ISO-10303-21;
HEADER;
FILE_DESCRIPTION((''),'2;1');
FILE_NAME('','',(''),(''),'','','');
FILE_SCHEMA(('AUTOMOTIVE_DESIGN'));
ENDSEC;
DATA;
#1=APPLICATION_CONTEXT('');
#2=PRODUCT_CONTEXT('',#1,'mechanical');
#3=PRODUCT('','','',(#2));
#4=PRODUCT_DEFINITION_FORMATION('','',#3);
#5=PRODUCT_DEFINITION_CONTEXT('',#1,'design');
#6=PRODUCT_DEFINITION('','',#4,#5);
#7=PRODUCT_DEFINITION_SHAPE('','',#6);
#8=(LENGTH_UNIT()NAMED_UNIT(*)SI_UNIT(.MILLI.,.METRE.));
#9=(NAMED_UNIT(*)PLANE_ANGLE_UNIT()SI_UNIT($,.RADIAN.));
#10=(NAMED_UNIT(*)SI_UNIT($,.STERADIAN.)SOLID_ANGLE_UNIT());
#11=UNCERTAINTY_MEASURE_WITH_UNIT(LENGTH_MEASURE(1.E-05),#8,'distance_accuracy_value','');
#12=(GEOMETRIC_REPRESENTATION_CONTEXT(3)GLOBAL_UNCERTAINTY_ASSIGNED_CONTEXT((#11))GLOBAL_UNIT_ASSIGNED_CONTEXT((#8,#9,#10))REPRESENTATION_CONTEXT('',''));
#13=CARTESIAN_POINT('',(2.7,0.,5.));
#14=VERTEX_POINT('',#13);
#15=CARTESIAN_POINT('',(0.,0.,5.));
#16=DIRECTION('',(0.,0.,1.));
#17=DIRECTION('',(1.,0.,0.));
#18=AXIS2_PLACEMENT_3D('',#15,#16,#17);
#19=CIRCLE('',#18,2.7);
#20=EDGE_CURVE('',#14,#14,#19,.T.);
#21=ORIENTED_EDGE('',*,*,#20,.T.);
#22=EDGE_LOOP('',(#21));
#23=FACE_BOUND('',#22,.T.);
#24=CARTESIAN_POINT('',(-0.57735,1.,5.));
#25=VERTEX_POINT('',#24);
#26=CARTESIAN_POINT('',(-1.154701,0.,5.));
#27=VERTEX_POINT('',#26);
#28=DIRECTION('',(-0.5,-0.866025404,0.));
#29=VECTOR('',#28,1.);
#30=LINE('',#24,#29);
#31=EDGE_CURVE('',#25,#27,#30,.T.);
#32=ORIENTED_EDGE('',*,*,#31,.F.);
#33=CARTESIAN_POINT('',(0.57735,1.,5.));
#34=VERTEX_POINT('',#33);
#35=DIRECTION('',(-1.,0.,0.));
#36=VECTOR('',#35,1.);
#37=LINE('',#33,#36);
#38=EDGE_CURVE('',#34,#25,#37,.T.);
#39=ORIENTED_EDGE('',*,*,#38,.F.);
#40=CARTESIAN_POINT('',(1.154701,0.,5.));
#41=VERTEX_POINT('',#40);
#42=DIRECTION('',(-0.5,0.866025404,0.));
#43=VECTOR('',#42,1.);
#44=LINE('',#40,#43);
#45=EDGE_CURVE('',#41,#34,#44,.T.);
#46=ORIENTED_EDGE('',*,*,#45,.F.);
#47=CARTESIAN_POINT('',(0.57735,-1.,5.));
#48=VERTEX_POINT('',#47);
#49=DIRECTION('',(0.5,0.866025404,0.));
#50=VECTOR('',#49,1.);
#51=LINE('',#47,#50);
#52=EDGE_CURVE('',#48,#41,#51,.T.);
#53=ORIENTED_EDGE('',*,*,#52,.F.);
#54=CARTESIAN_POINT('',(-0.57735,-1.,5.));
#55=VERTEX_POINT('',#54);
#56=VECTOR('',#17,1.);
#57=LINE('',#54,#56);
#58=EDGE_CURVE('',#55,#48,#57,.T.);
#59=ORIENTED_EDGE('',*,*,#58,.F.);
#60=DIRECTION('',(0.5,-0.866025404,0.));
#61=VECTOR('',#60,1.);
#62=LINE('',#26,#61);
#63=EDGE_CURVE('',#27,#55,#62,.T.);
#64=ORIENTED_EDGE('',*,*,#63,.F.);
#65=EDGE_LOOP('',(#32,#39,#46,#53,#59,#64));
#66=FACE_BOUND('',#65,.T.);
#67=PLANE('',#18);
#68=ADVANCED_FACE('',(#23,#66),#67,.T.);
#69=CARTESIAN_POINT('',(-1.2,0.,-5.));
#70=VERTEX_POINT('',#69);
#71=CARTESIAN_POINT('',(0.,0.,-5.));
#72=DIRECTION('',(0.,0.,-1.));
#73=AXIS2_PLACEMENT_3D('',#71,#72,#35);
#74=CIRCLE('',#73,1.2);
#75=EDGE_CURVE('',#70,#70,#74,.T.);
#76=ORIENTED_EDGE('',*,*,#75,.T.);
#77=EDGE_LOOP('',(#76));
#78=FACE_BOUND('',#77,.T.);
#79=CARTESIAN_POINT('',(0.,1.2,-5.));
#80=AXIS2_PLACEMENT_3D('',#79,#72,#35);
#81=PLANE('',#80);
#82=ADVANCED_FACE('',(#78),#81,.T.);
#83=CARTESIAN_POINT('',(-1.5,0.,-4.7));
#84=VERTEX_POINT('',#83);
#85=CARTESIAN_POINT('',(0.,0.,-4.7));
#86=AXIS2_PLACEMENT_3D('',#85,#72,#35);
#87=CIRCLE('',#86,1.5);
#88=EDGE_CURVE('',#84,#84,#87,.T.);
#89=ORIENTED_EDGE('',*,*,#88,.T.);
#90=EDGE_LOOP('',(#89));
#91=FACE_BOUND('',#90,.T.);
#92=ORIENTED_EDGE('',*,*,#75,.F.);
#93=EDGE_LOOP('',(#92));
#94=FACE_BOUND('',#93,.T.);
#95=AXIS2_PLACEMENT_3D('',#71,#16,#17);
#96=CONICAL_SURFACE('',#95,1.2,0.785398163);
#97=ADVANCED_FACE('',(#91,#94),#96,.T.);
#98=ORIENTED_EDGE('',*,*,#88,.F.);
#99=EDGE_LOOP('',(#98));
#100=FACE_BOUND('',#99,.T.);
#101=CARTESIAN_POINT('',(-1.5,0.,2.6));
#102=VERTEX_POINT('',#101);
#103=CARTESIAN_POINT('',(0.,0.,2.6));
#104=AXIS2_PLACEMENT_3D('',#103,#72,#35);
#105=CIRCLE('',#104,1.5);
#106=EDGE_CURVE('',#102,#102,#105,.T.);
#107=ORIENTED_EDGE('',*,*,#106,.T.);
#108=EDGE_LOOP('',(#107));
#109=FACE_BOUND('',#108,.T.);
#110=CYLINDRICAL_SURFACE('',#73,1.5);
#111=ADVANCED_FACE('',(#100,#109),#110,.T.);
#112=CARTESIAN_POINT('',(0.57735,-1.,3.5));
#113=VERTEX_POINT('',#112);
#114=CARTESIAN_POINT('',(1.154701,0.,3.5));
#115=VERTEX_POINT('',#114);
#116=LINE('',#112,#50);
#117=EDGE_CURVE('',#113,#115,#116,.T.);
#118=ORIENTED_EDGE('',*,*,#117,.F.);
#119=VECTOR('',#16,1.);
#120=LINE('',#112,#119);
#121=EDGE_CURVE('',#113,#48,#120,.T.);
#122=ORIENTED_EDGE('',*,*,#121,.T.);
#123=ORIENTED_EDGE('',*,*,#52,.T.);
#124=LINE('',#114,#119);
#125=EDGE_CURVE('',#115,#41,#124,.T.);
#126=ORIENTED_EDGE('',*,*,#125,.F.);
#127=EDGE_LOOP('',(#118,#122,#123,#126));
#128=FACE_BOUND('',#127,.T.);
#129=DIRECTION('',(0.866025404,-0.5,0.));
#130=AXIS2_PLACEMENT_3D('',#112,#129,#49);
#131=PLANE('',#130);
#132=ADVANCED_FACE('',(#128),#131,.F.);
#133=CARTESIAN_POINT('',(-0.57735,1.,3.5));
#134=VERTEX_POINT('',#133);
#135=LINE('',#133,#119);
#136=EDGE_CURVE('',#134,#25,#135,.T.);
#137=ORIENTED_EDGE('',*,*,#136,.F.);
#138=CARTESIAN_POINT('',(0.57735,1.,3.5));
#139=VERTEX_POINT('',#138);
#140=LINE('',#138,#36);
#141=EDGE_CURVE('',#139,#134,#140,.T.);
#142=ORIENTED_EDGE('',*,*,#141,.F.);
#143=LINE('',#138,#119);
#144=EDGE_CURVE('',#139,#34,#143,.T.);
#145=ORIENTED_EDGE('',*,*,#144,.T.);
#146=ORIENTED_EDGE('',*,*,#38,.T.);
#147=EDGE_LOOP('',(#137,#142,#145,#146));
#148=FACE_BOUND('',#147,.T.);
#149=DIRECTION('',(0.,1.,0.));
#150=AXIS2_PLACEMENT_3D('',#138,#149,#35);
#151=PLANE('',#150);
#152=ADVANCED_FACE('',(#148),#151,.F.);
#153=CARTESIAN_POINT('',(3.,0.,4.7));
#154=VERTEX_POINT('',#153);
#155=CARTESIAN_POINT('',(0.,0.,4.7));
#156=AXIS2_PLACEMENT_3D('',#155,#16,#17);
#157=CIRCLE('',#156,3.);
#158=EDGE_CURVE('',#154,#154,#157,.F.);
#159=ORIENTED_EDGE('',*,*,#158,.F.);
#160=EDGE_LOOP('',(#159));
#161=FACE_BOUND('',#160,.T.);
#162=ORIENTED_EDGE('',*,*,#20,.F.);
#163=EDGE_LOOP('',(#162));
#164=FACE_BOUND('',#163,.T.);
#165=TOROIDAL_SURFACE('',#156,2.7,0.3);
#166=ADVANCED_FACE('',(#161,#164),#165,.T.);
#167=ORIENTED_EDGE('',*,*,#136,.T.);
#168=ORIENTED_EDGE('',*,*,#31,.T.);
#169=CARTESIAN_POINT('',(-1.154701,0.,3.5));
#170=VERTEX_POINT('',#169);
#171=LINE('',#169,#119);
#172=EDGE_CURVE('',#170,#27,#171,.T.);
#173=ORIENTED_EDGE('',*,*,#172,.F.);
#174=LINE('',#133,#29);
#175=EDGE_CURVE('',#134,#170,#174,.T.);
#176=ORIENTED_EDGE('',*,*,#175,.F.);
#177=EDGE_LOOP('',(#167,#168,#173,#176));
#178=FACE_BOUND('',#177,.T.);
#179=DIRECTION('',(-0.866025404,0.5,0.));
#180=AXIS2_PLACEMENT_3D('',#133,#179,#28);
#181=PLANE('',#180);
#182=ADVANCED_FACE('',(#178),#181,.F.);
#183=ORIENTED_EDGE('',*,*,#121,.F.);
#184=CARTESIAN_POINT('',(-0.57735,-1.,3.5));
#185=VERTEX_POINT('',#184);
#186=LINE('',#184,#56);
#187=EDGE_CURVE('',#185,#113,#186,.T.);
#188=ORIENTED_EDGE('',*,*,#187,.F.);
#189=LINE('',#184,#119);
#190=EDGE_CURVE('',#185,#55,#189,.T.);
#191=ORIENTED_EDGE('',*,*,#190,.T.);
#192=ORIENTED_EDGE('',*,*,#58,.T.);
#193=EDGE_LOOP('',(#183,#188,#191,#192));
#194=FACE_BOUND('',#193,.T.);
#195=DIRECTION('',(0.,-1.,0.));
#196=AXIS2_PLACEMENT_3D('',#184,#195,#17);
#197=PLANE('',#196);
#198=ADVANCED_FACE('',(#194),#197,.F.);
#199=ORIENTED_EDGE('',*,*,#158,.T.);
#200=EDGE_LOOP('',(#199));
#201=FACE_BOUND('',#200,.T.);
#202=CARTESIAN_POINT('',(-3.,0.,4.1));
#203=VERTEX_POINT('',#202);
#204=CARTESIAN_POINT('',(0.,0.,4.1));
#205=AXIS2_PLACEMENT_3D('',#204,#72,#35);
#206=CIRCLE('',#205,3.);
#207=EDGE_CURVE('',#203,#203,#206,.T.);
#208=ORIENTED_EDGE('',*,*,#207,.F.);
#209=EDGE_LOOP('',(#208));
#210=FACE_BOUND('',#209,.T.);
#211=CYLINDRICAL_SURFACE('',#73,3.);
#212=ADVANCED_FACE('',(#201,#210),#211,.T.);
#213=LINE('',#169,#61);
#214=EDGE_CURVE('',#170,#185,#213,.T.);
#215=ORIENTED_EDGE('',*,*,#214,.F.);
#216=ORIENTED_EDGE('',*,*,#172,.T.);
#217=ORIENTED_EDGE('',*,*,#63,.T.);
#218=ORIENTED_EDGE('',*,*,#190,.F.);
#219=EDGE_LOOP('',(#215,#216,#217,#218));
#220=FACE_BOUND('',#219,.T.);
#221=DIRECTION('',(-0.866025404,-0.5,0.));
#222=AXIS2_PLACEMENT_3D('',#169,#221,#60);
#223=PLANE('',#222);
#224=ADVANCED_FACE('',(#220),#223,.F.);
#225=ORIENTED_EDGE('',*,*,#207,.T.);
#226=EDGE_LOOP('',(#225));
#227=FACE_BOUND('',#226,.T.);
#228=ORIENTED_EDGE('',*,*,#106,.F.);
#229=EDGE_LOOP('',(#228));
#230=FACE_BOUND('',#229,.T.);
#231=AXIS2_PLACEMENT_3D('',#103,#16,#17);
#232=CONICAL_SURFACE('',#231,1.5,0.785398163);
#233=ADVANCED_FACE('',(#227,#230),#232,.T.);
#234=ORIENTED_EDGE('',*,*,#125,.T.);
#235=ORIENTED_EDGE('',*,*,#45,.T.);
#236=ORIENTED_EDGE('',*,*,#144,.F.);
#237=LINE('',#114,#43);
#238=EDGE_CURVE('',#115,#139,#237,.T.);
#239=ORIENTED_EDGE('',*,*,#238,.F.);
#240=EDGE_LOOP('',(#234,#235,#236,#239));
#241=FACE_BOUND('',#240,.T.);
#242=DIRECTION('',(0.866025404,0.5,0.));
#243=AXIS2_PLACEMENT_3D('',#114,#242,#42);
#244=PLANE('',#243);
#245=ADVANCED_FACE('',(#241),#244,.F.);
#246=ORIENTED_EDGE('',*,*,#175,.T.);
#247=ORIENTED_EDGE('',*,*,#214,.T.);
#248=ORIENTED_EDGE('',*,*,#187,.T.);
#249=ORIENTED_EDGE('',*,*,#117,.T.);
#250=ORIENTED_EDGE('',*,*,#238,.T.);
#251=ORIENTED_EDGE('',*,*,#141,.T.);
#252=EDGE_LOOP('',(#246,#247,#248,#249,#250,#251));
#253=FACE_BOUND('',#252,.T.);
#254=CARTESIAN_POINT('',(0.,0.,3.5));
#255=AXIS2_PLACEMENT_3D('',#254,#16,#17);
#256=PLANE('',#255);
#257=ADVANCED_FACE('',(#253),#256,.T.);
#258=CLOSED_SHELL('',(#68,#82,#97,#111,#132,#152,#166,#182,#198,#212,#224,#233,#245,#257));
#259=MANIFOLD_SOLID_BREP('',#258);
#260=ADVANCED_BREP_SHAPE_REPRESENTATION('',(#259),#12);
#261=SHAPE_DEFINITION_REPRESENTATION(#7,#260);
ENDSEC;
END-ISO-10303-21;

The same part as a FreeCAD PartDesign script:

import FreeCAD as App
import Part
import Sketcher

V = App.Vector
Q = App.Units.Quantity


def edges_at(feature, points):
    """Names of the edges that pass closest to the given points."""
    edges = feature.Shape.Edges
    near = lambda p: min(range(len(edges)), key=lambda i: edges[i].distToShape(Part.Vertex(*p))[0])
    return sorted({f"Edge{near(p) + 1}" for p in points})

doc = App.newDocument("Part")
body = doc.addObject("PartDesign::Body", "Body")

# Sketch on YZ plane
sketch1 = body.newObject("Sketcher::SketchObject", "Sketch")
sketch1.AttachmentSupport = (doc.getObject("YZ_Plane"), [""])
sketch1.MapMode = "FlatFace"
sketch1.addGeometry([
    Part.LineSegment(V(3, 5, 0), V(0, 5, 0)),  # 0
    Part.LineSegment(V(0, 5, 0), V(0, -5, 0)),  # 1
    Part.LineSegment(V(0, -5, 0), V(1.2, -5, 0)),  # 2
    Part.LineSegment(V(1.2, -5, 0), V(1.5, -4.7, 0)),  # 3
    Part.LineSegment(V(1.5, -4.7, 0), V(1.5, 2.6, 0)),  # 4
    Part.LineSegment(V(1.5, 2.6, 0), V(3, 4.1, 0)),  # 5
    Part.LineSegment(V(3, 4.1, 0), V(3, 5, 0)),  # 6
], False)
sketch1.addConstraint([
    Sketcher.Constraint("Coincident", 0, 2, 1, 1),
    Sketcher.Constraint("Coincident", 1, 2, 2, 1),
    Sketcher.Constraint("Coincident", 2, 2, 3, 1),
    Sketcher.Constraint("Coincident", 3, 2, 4, 1),
    Sketcher.Constraint("Coincident", 4, 2, 5, 1),
    Sketcher.Constraint("Coincident", 5, 2, 6, 1),
    Sketcher.Constraint("Coincident", 6, 2, 0, 1),
    Sketcher.Constraint("Horizontal", 0),
    Sketcher.Constraint("Vertical", 1),
    Sketcher.Constraint("Horizontal", 2),
    Sketcher.Constraint("Vertical", 4),
    Sketcher.Constraint("Vertical", 6),
    Sketcher.Constraint("Symmetric", 0, 2, 1, 2, -1, 1),
    Sketcher.Constraint("Parallel", 3, 5),
    Sketcher.Constraint("DistanceX", 0, 2, 0, 1, 3.0),
    Sketcher.Constraint("DistanceY", 1, 2, 1, 1, 10.0),
    Sketcher.Constraint("Angle", 3, Q("45 deg")),
    Sketcher.Constraint("DistanceX", 2, 1, 2, 2, 1.2),
    Sketcher.Constraint("DistanceY", 4, 1, 4, 2, 7.3),
    Sketcher.Constraint("DistanceX", -1, 1, 3, 2, 1.5),
])
revolution = body.newObject("PartDesign::Revolution", "Revolution")
revolution.Profile = sketch1
revolution.ReferenceAxis = (sketch1, ["V_Axis"])
revolution.Angle = 360

# Sketch on XY plane
sketch2 = body.newObject("Sketcher::SketchObject", "Sketch001")
sketch2.AttachmentSupport = (doc.getObject("XY_Plane"), [""])
sketch2.MapMode = "FlatFace"
sketch2.AttachmentOffset = App.Placement(V(0, 0, 5), App.Rotation())
sketch2.addGeometry([
    Part.LineSegment(V(1.2, 0, 0), V(0.6, 1, 0)),  # 0
    Part.LineSegment(V(0.6, 1, 0), V(-0.6, 1, 0)),  # 1
    Part.LineSegment(V(-0.6, 1, 0), V(-1.2, 0, 0)),  # 2
    Part.LineSegment(V(-1.2, 0, 0), V(-0.6, -1, 0)),  # 3
    Part.LineSegment(V(-0.6, -1, 0), V(0.6, -1, 0)),  # 4
    Part.LineSegment(V(0.6, -1, 0), V(1.2, 0, 0)),  # 5
], False)
sketch2.addConstraint([
    Sketcher.Constraint("Coincident", 0, 2, 1, 1),
    Sketcher.Constraint("Coincident", 1, 2, 2, 1),
    Sketcher.Constraint("Coincident", 2, 2, 3, 1),
    Sketcher.Constraint("Coincident", 3, 2, 4, 1),
    Sketcher.Constraint("Coincident", 4, 2, 5, 1),
    Sketcher.Constraint("Coincident", 5, 2, 0, 1),
    Sketcher.Constraint("Horizontal", 1),
    Sketcher.Constraint("Horizontal", 4),
    Sketcher.Constraint("Symmetric", 0, 2, 3, 2, -1, 1),
    Sketcher.Constraint("Symmetric", 2, 2, 5, 2, -1, 1),
    Sketcher.Constraint("PointOnObject", 2, 2, -1),
    Sketcher.Constraint("Parallel", 2, 5),
    Sketcher.Constraint("Vertical", 1, 2, 3, 2),
    Sketcher.Constraint("Angle", 0, Q("120 deg")),
    Sketcher.Constraint("DistanceY", -1, 1, 0, 2, 1.0),
    Sketcher.Constraint("DistanceX", 1, 2, 1, 1, 1.154701),
])
pocket1 = body.newObject("PartDesign::Pocket", "Pocket")
pocket1.Profile = sketch2
pocket1.Length = 1.5
doc.recompute()

fillet = body.newObject("PartDesign::Fillet", "Fillet")
fillet.Base = (pocket1, edges_at(pocket1, [(3, 0, 5)]))
fillet.Radius = 0.3

doc.recompute()
